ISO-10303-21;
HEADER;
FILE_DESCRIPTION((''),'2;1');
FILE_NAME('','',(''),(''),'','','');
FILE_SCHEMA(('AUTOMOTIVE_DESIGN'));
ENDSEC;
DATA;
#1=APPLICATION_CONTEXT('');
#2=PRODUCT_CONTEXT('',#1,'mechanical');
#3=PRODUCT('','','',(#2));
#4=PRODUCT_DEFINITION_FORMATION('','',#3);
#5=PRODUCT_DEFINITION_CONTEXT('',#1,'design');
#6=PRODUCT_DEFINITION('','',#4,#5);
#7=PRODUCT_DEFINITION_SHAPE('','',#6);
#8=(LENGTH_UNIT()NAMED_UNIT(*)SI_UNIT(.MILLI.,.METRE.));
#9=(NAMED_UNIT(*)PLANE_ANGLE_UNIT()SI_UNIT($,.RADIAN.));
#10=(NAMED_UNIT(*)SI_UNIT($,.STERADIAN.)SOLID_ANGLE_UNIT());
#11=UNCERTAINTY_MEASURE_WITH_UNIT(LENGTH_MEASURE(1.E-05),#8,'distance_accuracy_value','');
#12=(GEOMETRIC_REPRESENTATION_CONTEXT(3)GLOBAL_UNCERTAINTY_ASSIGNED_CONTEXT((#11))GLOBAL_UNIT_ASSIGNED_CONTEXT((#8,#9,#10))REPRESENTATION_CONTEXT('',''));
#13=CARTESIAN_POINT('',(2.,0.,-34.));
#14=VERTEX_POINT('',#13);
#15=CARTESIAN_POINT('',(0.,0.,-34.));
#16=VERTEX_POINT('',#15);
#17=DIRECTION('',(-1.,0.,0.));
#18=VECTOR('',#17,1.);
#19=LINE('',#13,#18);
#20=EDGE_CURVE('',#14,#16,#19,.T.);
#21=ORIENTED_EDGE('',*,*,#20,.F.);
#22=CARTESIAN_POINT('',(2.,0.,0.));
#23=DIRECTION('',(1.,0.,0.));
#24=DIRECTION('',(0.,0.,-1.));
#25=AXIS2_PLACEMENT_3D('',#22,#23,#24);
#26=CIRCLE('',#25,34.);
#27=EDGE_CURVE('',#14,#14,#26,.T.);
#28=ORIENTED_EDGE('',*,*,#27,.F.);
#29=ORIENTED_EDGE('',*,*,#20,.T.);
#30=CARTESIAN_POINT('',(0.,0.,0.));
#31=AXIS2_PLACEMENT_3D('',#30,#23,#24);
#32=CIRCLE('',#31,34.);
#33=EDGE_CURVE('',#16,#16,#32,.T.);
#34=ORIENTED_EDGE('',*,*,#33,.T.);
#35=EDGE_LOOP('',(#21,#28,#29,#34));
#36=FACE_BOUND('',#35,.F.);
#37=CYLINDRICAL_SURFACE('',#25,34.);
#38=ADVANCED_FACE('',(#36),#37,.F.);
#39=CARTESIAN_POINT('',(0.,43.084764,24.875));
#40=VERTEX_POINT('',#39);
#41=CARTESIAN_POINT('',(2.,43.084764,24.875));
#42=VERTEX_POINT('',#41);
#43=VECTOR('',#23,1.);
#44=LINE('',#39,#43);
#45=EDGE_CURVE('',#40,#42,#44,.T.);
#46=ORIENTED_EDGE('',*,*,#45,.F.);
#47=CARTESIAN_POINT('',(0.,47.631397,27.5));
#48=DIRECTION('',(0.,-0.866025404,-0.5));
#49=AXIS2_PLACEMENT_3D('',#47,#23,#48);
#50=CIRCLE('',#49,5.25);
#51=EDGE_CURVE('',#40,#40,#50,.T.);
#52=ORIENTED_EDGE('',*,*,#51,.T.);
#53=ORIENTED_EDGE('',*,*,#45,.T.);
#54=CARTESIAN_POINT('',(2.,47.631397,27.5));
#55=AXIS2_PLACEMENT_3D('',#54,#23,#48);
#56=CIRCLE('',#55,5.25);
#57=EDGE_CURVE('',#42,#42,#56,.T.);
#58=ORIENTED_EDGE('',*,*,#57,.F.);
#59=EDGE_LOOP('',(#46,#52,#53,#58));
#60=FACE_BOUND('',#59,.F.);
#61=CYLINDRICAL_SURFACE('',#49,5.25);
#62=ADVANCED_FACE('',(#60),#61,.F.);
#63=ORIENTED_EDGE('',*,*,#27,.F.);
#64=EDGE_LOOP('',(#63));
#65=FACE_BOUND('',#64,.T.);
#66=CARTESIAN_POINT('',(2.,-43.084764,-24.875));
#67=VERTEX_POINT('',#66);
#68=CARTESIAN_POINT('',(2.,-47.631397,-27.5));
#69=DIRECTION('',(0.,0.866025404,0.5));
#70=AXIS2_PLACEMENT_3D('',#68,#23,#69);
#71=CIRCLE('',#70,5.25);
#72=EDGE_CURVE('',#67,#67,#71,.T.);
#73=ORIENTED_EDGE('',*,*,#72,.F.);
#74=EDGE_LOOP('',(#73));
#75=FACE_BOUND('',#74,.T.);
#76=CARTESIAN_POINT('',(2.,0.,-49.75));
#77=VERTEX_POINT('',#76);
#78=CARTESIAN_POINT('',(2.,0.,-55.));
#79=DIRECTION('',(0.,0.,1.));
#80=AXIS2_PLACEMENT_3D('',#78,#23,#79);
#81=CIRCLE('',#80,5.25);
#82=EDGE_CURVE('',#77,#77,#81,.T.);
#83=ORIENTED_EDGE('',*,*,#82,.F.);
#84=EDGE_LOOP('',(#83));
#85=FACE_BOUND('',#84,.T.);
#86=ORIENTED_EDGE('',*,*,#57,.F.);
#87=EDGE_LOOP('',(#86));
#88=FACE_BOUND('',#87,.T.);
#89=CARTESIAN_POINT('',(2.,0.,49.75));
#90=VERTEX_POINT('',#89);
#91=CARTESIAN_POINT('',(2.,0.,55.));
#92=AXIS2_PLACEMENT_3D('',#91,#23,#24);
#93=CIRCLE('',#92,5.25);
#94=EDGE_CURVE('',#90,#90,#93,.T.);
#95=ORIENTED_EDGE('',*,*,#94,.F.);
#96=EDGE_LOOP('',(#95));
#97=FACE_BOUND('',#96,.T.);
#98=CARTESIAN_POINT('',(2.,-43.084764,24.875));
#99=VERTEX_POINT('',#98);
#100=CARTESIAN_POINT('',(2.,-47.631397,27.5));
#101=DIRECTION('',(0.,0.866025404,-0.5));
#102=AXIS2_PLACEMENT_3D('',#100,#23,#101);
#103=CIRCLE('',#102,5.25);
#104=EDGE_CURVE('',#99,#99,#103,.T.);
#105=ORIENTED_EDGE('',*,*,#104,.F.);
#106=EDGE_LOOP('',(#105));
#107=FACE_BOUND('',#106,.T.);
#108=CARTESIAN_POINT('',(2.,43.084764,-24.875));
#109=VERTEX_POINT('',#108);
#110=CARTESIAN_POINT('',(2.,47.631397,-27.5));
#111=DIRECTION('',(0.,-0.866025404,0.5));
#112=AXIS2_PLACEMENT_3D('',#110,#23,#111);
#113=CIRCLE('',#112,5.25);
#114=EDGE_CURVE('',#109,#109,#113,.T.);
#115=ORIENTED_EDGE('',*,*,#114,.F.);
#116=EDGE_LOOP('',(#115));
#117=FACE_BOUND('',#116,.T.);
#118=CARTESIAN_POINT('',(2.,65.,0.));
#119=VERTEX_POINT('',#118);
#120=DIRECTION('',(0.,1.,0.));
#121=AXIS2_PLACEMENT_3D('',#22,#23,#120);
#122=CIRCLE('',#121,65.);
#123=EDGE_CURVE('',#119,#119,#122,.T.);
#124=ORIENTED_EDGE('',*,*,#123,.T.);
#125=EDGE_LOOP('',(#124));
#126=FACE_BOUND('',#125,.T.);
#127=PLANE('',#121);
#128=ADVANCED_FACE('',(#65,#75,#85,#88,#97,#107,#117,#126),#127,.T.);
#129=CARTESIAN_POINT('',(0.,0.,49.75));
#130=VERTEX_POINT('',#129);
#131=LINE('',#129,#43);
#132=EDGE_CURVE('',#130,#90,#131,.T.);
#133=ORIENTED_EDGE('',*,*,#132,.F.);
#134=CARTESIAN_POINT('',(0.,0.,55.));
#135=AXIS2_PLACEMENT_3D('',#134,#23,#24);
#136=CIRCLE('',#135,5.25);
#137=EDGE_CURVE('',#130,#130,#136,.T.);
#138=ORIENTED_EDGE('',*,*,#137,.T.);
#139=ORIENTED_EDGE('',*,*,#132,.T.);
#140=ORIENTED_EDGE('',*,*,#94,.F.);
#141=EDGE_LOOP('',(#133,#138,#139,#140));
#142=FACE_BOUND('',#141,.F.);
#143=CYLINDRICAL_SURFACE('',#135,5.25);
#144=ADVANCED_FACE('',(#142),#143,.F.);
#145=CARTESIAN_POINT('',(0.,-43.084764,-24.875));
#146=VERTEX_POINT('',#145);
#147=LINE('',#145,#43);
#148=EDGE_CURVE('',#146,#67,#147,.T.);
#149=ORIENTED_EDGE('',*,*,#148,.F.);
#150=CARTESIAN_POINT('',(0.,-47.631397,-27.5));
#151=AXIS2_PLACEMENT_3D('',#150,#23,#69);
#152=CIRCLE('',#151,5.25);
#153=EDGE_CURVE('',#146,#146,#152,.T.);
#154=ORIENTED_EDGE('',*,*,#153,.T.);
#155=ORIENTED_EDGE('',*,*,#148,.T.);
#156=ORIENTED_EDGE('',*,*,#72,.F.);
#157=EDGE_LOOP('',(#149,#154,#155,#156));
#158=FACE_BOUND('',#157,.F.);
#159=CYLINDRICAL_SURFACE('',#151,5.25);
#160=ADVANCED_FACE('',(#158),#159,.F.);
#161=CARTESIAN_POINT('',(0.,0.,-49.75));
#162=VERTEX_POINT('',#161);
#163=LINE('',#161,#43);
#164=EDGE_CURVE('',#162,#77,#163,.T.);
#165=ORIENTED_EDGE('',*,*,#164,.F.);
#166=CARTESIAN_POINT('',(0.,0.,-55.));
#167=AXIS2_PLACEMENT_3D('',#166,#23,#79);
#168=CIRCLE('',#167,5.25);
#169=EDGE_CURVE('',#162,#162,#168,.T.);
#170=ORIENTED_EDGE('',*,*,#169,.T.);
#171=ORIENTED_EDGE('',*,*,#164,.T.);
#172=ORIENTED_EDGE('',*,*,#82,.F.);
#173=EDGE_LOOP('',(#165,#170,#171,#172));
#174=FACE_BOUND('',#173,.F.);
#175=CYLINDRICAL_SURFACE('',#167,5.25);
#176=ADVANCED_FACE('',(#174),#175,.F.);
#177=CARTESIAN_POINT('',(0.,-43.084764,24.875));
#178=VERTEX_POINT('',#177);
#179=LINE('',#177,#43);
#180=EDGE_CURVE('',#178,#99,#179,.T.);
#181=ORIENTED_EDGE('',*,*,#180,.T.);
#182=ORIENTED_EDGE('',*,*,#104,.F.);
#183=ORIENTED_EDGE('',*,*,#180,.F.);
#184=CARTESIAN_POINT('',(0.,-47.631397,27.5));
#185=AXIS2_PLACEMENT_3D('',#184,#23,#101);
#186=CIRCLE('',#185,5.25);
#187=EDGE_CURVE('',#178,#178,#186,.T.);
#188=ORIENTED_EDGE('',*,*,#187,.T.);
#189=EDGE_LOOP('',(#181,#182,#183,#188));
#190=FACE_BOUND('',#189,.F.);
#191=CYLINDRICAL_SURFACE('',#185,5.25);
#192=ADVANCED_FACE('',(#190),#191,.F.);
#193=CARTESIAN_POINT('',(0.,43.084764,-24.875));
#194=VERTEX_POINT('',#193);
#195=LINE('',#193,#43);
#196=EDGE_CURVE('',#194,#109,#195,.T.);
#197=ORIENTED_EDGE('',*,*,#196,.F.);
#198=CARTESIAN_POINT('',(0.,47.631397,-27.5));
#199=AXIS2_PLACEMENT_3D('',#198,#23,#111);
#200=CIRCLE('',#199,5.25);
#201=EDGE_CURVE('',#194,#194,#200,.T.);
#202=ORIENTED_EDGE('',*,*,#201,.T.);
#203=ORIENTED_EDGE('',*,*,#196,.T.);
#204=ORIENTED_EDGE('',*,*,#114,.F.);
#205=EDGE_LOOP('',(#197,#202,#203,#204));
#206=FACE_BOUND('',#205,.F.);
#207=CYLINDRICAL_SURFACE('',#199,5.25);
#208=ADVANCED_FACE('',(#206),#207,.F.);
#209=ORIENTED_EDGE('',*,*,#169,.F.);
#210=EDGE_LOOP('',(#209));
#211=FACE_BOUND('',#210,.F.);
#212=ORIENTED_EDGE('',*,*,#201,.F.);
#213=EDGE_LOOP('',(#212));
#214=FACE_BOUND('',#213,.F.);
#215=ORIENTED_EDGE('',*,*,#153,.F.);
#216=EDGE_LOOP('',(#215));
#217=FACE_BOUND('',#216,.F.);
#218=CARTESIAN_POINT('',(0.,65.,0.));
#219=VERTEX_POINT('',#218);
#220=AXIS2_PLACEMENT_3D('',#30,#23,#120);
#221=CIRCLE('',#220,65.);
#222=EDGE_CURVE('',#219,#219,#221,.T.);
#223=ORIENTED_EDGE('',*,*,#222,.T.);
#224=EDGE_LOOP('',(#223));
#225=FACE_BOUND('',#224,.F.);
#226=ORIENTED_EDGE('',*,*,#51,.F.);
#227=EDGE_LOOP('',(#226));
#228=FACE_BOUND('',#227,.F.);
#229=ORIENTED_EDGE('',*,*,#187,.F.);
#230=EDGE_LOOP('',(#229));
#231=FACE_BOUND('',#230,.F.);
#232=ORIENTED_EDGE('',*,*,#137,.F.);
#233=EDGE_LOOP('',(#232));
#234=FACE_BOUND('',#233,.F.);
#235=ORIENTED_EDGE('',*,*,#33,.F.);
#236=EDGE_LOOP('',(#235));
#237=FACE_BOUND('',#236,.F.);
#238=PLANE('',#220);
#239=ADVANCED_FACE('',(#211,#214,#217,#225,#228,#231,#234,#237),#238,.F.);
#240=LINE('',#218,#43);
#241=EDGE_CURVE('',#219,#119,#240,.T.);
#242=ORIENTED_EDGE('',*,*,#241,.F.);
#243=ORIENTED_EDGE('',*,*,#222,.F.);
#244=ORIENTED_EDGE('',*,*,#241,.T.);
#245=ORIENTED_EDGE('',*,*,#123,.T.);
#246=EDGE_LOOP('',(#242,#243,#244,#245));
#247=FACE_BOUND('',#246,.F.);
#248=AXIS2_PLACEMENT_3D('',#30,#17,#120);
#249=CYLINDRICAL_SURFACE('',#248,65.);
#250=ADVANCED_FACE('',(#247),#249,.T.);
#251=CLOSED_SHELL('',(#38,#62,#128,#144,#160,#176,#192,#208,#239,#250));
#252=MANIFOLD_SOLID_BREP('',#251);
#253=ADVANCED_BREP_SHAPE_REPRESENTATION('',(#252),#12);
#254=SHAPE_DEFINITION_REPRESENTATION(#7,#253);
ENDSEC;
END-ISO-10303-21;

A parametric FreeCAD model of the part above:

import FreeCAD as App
import Part
import Sketcher
Q = App.Units.Quantity

doc = App.newDocument("Part")
body = doc.addObject("PartDesign::Body", "Body")

# Sketch on YZ plane
sketch1 = doc.addObject("Sketcher::SketchObject", "Sketch")
body.addObject(sketch1)
sketch1.AttachmentSupport = (doc.YZ_Plane, [""])
sketch1.MapMode = "FlatFace"
sketch1.addGeometry(Part.Circle(App.Vector(0, 0, 0), App.Vector(0, 0, 1), 65), False)
sketch1.addConstraint(Sketcher.Constraint("Coincident", 0, 3, -1, 1))
sketch1.addConstraint(Sketcher.Constraint("Diameter", 0, Q("130 mm")))
pad1 = doc.addObject("PartDesign::Pad", "Pad")
body.addObject(pad1)
pad1.Profile = sketch1
pad1.Length = 2

# Sketch on YZ plane
sketch2 = doc.addObject("Sketcher::SketchObject", "Sketch001")
body.addObject(sketch2)
sketch2.AttachmentSupport = (doc.YZ_Plane, [""])
sketch2.MapMode = "FlatFace"
sketch2.addGeometry(Part.Circle(App.Vector(0, -55, 0), App.Vector(0, 0, 1), 5.25), False)
sketch2.addConstraint(Sketcher.Constraint("PointOnObject", 0, 3, -2))
sketch2.addConstraint(Sketcher.Constraint("Diameter", 0, Q("10.5 mm")))
sketch2.addConstraint(Sketcher.Constraint("DistanceY", 0, 3, -1, 1, Q("55 mm")))
doc.recompute()
hole = doc.addObject("PartDesign::Hole", "Hole")
body.addObject(hole)
hole.Profile = sketch2
hole.ThreadType = "None"
hole.Diameter = 10.5
hole.DepthType = "ThroughAll"
hole.Reversed = True
doc.recompute()

polarpattern = doc.addObject("PartDesign::PolarPattern", "PolarPattern")
body.addObject(polarpattern)
polarpattern.Originals = [hole]
polarpattern.Axis = (doc.X_Axis, [""])
polarpattern.Angle = 360
polarpattern.Occurrences = 6
body.Tip = polarpattern

# Sketch on YZ plane
sketch3 = doc.addObject("Sketcher::SketchObject", "Sketch002")
body.addObject(sketch3)
sketch3.AttachmentSupport = (doc.YZ_Plane, [""])
sketch3.MapMode = "FlatFace"
sketch3.AttachmentOffset = App.Placement(App.Vector(0, 0, 2), App.Rotation())
sketch3.addGeometry(Part.Circle(App.Vector(0, 0, 0), App.Vector(0, 0, 1), 34), False)
sketch3.addConstraint(Sketcher.Constraint("Coincident", 0, 3, -1, 1))
sketch3.addConstraint(Sketcher.Constraint("Diameter", 0, Q("68 mm")))
pocket1 = doc.addObject("PartDesign::Pocket", "Pocket")
body.addObject(pocket1)
pocket1.Profile = sketch3
pocket1.Length = 10

doc.recompute()
